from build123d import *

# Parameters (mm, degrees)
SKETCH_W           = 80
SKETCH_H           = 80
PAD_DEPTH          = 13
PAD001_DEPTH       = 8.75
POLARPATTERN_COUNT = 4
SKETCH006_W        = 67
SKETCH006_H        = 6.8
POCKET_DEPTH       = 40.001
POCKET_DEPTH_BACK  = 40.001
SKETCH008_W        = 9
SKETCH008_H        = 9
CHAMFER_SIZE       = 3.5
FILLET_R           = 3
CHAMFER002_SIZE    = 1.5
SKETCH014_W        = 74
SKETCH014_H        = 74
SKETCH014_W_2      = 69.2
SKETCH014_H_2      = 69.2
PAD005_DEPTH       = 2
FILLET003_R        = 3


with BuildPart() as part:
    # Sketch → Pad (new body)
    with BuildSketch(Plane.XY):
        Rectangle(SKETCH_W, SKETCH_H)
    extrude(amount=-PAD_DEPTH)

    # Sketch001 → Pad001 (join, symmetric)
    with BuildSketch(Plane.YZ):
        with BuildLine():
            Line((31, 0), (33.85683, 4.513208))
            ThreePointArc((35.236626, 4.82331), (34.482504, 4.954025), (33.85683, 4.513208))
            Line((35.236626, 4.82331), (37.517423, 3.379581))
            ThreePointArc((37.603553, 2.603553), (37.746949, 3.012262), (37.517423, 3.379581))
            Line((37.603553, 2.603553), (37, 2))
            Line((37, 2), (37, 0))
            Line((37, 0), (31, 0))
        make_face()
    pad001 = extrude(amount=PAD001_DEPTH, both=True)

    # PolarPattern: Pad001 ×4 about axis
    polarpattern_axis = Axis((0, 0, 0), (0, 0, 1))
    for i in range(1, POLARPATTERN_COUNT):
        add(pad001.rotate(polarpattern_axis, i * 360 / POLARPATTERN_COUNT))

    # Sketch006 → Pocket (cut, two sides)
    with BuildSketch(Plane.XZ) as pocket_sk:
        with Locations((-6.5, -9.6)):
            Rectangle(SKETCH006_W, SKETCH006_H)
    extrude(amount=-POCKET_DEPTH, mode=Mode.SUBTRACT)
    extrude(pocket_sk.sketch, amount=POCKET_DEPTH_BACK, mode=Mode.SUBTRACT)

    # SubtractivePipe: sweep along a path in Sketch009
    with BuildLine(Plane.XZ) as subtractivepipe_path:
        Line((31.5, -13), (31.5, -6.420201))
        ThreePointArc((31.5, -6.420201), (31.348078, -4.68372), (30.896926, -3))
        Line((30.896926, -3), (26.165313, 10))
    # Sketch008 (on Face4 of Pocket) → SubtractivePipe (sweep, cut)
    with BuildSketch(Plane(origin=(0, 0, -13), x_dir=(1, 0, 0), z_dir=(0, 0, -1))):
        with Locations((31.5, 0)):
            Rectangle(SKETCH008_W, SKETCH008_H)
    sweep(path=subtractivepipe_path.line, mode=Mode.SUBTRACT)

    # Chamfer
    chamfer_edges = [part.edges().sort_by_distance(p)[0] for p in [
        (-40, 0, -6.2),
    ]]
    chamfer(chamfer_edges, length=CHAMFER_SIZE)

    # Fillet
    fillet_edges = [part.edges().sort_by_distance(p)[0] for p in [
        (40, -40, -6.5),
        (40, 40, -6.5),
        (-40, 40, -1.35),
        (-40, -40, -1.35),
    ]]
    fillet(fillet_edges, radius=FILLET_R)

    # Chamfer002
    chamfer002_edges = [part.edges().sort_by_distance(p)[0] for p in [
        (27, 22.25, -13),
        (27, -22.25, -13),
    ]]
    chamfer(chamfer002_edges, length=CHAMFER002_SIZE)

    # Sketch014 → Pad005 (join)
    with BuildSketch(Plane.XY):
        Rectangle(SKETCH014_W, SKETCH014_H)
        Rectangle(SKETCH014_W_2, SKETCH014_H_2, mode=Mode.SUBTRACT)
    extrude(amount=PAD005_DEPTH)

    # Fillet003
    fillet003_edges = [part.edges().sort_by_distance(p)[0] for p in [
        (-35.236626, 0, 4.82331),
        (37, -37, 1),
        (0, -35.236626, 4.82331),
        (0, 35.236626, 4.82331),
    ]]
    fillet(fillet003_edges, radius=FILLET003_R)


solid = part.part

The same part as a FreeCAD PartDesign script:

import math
import FreeCAD as App
import Part
import Sketcher
Q = App.Units.Quantity


def edges_at(feature, points):
    """Names of the edges that pass closest to the given points."""
    edges = feature.Shape.Edges
    near = lambda p: min(range(len(edges)), key=lambda i: edges[i].distToShape(Part.Vertex(*p))[0])
    return sorted({f"Edge{near(p) + 1}" for p in points})


def add_polygon(sketch, points):
    """Adds a closed chain of lines whose ends are joined by coincident constraints."""
    first, n = sketch.GeometryCount, len(points)
    for a, b in zip(points, points[1:] + points[:1]):
        sketch.addGeometry(Part.LineSegment(App.Vector(*a, 0), App.Vector(*b, 0)), False)
    for i in range(n):
        sketch.addConstraint(Sketcher.Constraint("Coincident", first + i, 2, first + (i + 1) % n, 1))

doc = App.newDocument("Part")
body = doc.addObject("PartDesign::Body", "Body")

sketch1 = body.newObject("Sketcher::SketchObject", "Sketch")
sketch1.AttachmentSupport = (doc.getObject("XY_Plane"), [""])
sketch1.MapMode = "FlatFace"
add_polygon(sketch1, [(-40, 40), (-40, -40), (40, -40), (40, 40)])
sketch1.addConstraint([
    Sketcher.Constraint("Vertical", 0),
    Sketcher.Constraint("Horizontal", 1),
    Sketcher.Constraint("Vertical", 2),
    Sketcher.Constraint("Horizontal", 3),
    Sketcher.Constraint("Symmetric", 0, 2, 2, 2, -1, 1),
    Sketcher.Constraint("Equal", 3, 0),
    Sketcher.Constraint("DistanceX", 1, 1, 1, 2, Q("80 mm")),
])
pad1 = body.newObject("PartDesign::Pad", "Pad")
pad1.Profile = sketch1
pad1.Length = 13
pad1.Reversed = True

sketch2 = body.newObject("Sketcher::SketchObject", "Sketch001")
sketch2.AttachmentSupport = (doc.getObject("YZ_Plane"), [""])
sketch2.MapMode = "FlatFace"
sketch2.addGeometry([
    Part.LineSegment(App.Vector(33.85683, 4.513208, 0), App.Vector(31, 0, 0)),
    Part.LineSegment(App.Vector(31, 0, 0), App.Vector(37, 0, 0)),
    Part.LineSegment(App.Vector(37, 0, 0), App.Vector(37, 2, 0)),
    Part.LineSegment(App.Vector(37, 2, 0), App.Vector(37.603553, 2.603553, 0)),
    Part.ArcOfCircle(Part.Circle(App.Vector(37.250002, 2.957107, 0), App.Vector(0, 0, 1), 0.499999), math.radians(-45.000195), math.radians(57.666673)),
    Part.LineSegment(App.Vector(37.517423, 3.379581, 0), App.Vector(35.236626, 4.82331, 0)),
    Part.ArcOfCircle(Part.Circle(App.Vector(34.701778, 3.978364, 0), App.Vector(0, 0, 1), 0.999998), math.radians(57.666353), math.radians(147.66658)),
], False)
sketch2.addConstraint([
    Sketcher.Constraint("Coincident", 0, 2, 1, 1),
    Sketcher.Constraint("Coincident", 1, 2, 2, 1),
    Sketcher.Constraint("Coincident", 2, 2, 3, 1),
    Sketcher.Constraint("Coincident", 3, 2, 4, 1),
    Sketcher.Constraint("Coincident", 4, 2, 5, 1),
    Sketcher.Constraint("Coincident", 5, 2, 6, 1),
    Sketcher.Constraint("Coincident", 6, 2, 0, 1),
    Sketcher.Constraint("Horizontal", 1),
    Sketcher.Constraint("Vertical", 2),
    Sketcher.Constraint("PointOnObject", 0, 2, -1),
    Sketcher.Constraint("Radius", 6, Q("0.999998 mm")),
    Sketcher.Constraint("Radius", 4, Q("0.499999 mm")),
    Sketcher.Constraint("DistanceX", 1, 1, 1, 2, Q("6 mm")),
    Sketcher.Constraint("DistanceY", 2, 1, 2, 2, Q("2 mm")),
    Sketcher.Constraint("DistanceX", -1, 1, 0, 2, Q("31 mm")),
    Sketcher.Constraint("DistanceX", -1, 1, 4, 3, Q("37.250002 mm")),
    Sketcher.Constraint("DistanceY", 4, 3, 6, 2, Q("1.556101 mm")),
    Sketcher.Constraint("Distance", 5, Q("2.699331 mm")),
    Sketcher.Constraint("DistanceX", -1, 1, 6, 3, Q("34.701778 mm")),
    Sketcher.Constraint("DistanceY", -1, 1, 4, 2, Q("3.379581 mm")),
    Sketcher.Constraint("DistanceY", -1, 1, 5, 2, Q("4.82331 mm")),
    Sketcher.Constraint("DistanceX", 4, 3, 3, 2, Q("0.353551 mm")),
    Sketcher.Constraint("DistanceX", 4, 3, 4, 2, Q("0.267421 mm")),
])
pad2 = body.newObject("PartDesign::Pad", "Pad001")
pad2.Profile = sketch2
pad2.Length = 17.5
pad2.Midplane = True
doc.recompute()

polarpattern = body.newObject("PartDesign::PolarPattern", "PolarPattern")
polarpattern.Originals = [pad2]
polarpattern.Axis = (doc.getObject("Z_Axis"), [""])
polarpattern.Angle = 360
polarpattern.Occurrences = 4
body.Tip = polarpattern

sketch3 = body.newObject("Sketcher::SketchObject", "Sketch002")
sketch3.AttachmentSupport = (doc.getObject("XZ_Plane"), [""])
sketch3.MapMode = "FlatFace"
add_polygon(sketch3, [(-40, -6.2), (-40, -13), (27, -13), (27, -6.2)])
sketch3.addConstraint([
    Sketcher.Constraint("Vertical", 0),
    Sketcher.Constraint("Horizontal", 1),
    Sketcher.Constraint("Vertical", 2),
    Sketcher.Constraint("Horizontal", 3),
    Sketcher.Constraint("DistanceX", 1, 1, 1, 2, Q("67 mm")),
    Sketcher.Constraint("DistanceY", 0, 2, 0, 1, Q("6.8 mm")),
    Sketcher.Constraint("DistanceX", 0, 2, -1, 1, Q("40 mm")),
    Sketcher.Constraint("DistanceY", 0, 2, -1, 1, Q("13 mm")),
])
pocket1 = body.newObject("PartDesign::Pocket", "Pocket")
pocket1.Profile = sketch3
pocket1.Type = "ThroughAll"
pocket1.Midplane = True

sketch4 = body.newObject("Sketcher::SketchObject", "Sketch003")
sketch4.AttachmentSupport = (doc.getObject("XY_Plane"), [""])
sketch4.MapMode = "FlatFace"
sketch4.AttachmentOffset = App.Placement(App.Vector(0, 0, -13), App.Rotation())
add_polygon(sketch4, [(27, -4.5), (27, 4.5), (36, 4.5), (36, -4.5)])
sketch4.addConstraint([
    Sketcher.Constraint("Vertical", 0),
    Sketcher.Constraint("Horizontal", 1),
    Sketcher.Constraint("Vertical", 2),
    Sketcher.Constraint("Horizontal", 3),
    Sketcher.Constraint("Equal", 3, 0),
    Sketcher.Constraint("DistanceX", 1, 1, 1, 2, Q("9 mm")),
    Sketcher.Constraint("DistanceX", -1, 1, 0, 2, Q("27 mm")),
    Sketcher.Constraint("DistanceY", -1, 1, 0, 2, Q("4.5 mm")),
])

sketch5 = body.newObject("Sketcher::SketchObject", "Sketch004")
sketch5.AttachmentSupport = (doc.getObject("XZ_Plane"), [""])
sketch5.MapMode = "FlatFace"
sketch5.addGeometry([
    Part.LineSegment(App.Vector(31.5, -13, 0), App.Vector(31.5, -6.420201, 0)),
    Part.ArcOfCircle(Part.Circle(App.Vector(21.500033, -6.420196, 0), App.Vector(0, 0, 1), 9.999967), math.radians(-0.000027), math.radians(20.000036)),
    Part.LineSegment(App.Vector(30.896926, -3, 0), App.Vector(26.165313, 10, 0)),
], False)
sketch5.addConstraint([
    Sketcher.Constraint("Coincident", 0, 2, 1, 1),
    Sketcher.Constraint("Coincident", 1, 2, 2, 1),
    Sketcher.Constraint("Vertical", 0),
    Sketcher.Constraint("DistanceY", 0, 1, -1, 1, Q("13 mm")),
    Sketcher.Constraint("DistanceY", 1, 2, -1, 1, Q("3 mm")),
    Sketcher.Constraint("DistanceY", -1, 1, 2, 2, Q("10 mm")),
    Sketcher.Constraint("DistanceX", -1, 1, 0, 1, Q("31.5 mm")),
    Sketcher.Constraint("DistanceY", 0, 1, 0, 2, Q("6.579799 mm")),
    Sketcher.Constraint("Radius", 1, Q("9.999967 mm")),
    Sketcher.Constraint("Distance", 2, Q("13.834311 mm")),
    Sketcher.Constraint("DistanceX", 1, 3, 2, 2, Q("4.66528 mm")),
])
doc.recompute()

subtractivepipe = body.newObject("PartDesign::SubtractivePipe", "SubtractivePipe")
subtractivepipe.Profile = sketch4
subtractivepipe.Spine = (sketch5, ["Edge1", "Edge2", "Edge3"])
doc.recompute()

chamfer = body.newObject("PartDesign::Chamfer", "Chamfer")
chamfer.Base = (subtractivepipe, edges_at(subtractivepipe, [(-40, 0, -6.2)]))
chamfer.Size = 3.5
doc.recompute()

fillet = body.newObject("PartDesign::Fillet", "Fillet")
fillet.Base = (chamfer, edges_at(chamfer, [
    (40, -40, -6.5),
    (40, 40, -6.5),
    (-40, 40, -1.35),
    (-40, -40, -1.35),
]))
fillet.Radius = 3
doc.recompute()

chamfer2 = body.newObject("PartDesign::Chamfer", "Chamfer001")
chamfer2.Base = (fillet, edges_at(fillet, [(27, 22.25, -13), (27, -22.25, -13)]))
chamfer2.Size = 1.5

sketch6 = body.newObject("Sketcher::SketchObject", "Sketch005")
sketch6.AttachmentSupport = (doc.getObject("XY_Plane"), [""])
sketch6.MapMode = "FlatFace"
add_polygon(sketch6, [(-37, 37), (-37, -37), (37, -37), (37, 37)])
add_polygon(sketch6, [(34.6, -34.6), (-34.6, -34.6), (-34.6, 34.6), (34.6, 34.6)])
sketch6.addConstraint([
    Sketcher.Constraint("Vertical", 0),
    Sketcher.Constraint("Horizontal", 1),
    Sketcher.Constraint("Vertical", 2),
    Sketcher.Constraint("Horizontal", 3),
    Sketcher.Constraint("Horizontal", 4),
    Sketcher.Constraint("Vertical", 5),
    Sketcher.Constraint("Horizontal", 6),
    Sketcher.Constraint("Vertical", 7),
    Sketcher.Constraint("Symmetric", 0, 2, 2, 2, -1, 1),
    Sketcher.Constraint("Symmetric", 4, 2, 6, 2, -1, 1),
    Sketcher.Constraint("Equal", 3, 0),
    Sketcher.Constraint("Equal", 6, 5),
    Sketcher.Constraint("DistanceX", 1, 1, 1, 2, Q("74 mm")),
    Sketcher.Constraint("DistanceX", 4, 2, 4, 1, Q("69.2 mm")),
])
pad3 = body.newObject("PartDesign::Pad", "Pad002")
pad3.Profile = sketch6
pad3.Length = 2
doc.recompute()

fillet2 = body.newObject("PartDesign::Fillet", "Fillet001")
fillet2.Base = (pad3, edges_at(pad3, [
    (-35.237, 0, 4.823),
    (37, -37, 1),
    (0, -35.237, 4.823),
    (0, 35.237, 4.823),
]))
fillet2.Radius = 3

doc.recompute()
